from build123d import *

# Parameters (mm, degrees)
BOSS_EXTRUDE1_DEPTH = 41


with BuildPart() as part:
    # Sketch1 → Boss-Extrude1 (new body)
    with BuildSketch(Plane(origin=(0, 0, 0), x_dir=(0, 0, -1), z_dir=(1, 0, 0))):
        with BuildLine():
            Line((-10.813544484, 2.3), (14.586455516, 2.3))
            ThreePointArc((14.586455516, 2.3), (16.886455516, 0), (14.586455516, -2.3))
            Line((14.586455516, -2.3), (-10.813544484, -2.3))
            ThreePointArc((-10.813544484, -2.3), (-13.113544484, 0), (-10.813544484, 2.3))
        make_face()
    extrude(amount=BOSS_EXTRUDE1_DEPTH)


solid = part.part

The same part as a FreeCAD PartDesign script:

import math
import FreeCAD as App
import Part
import Sketcher
Q = App.Units.Quantity

doc = App.newDocument("Part")
body = doc.addObject("PartDesign::Body", "Body")

# Sketch on YZ plane
sketch1 = body.newObject("Sketcher::SketchObject", "Sketch")
sketch1.AttachmentSupport = (doc.getObject("YZ_Plane"), [""])
sketch1.MapMode = "FlatFace"
sketch1.addGeometry([
    Part.LineSegment(App.Vector(2.3, -14.586456, 0), App.Vector(2.3, 10.813544, 0)),
    Part.ArcOfCircle(Part.Circle(App.Vector(0, 10.813544, 0), App.Vector(0, 0, 1), 2.3), math.radians(0), math.radians(180)),
    Part.LineSegment(App.Vector(-2.3, 10.813544, 0), App.Vector(-2.3, -14.586456, 0)),
    Part.ArcOfCircle(Part.Circle(App.Vector(0, -14.586456, 0), App.Vector(0, 0, 1), 2.3), math.radians(180), math.radians(360)),
], False)
sketch1.addConstraint([
    Sketcher.Constraint("Tangent", 0, 2, 1, 1),
    Sketcher.Constraint("Tangent", 1, 2, 2, 1),
    Sketcher.Constraint("Tangent", 2, 2, 3, 1),
    Sketcher.Constraint("Tangent", 3, 2, 0, 1),
    Sketcher.Constraint("Vertical", 0),
    Sketcher.Constraint("Vertical", 2),
    Sketcher.Constraint("PointOnObject", 1, 3, -2),
    Sketcher.Constraint("Radius", 1, Q("2.3 mm")),
    Sketcher.Constraint("DistanceY", 0, 1, 0, 2, Q("25.4 mm")),
    Sketcher.Constraint("DistanceY", -1, 1, 1, 3, Q("10.813544 mm")),
])
pad1 = body.newObject("PartDesign::Pad", "Pad")
pad1.Profile = sketch1
pad1.Length = 41

doc.recompute()
